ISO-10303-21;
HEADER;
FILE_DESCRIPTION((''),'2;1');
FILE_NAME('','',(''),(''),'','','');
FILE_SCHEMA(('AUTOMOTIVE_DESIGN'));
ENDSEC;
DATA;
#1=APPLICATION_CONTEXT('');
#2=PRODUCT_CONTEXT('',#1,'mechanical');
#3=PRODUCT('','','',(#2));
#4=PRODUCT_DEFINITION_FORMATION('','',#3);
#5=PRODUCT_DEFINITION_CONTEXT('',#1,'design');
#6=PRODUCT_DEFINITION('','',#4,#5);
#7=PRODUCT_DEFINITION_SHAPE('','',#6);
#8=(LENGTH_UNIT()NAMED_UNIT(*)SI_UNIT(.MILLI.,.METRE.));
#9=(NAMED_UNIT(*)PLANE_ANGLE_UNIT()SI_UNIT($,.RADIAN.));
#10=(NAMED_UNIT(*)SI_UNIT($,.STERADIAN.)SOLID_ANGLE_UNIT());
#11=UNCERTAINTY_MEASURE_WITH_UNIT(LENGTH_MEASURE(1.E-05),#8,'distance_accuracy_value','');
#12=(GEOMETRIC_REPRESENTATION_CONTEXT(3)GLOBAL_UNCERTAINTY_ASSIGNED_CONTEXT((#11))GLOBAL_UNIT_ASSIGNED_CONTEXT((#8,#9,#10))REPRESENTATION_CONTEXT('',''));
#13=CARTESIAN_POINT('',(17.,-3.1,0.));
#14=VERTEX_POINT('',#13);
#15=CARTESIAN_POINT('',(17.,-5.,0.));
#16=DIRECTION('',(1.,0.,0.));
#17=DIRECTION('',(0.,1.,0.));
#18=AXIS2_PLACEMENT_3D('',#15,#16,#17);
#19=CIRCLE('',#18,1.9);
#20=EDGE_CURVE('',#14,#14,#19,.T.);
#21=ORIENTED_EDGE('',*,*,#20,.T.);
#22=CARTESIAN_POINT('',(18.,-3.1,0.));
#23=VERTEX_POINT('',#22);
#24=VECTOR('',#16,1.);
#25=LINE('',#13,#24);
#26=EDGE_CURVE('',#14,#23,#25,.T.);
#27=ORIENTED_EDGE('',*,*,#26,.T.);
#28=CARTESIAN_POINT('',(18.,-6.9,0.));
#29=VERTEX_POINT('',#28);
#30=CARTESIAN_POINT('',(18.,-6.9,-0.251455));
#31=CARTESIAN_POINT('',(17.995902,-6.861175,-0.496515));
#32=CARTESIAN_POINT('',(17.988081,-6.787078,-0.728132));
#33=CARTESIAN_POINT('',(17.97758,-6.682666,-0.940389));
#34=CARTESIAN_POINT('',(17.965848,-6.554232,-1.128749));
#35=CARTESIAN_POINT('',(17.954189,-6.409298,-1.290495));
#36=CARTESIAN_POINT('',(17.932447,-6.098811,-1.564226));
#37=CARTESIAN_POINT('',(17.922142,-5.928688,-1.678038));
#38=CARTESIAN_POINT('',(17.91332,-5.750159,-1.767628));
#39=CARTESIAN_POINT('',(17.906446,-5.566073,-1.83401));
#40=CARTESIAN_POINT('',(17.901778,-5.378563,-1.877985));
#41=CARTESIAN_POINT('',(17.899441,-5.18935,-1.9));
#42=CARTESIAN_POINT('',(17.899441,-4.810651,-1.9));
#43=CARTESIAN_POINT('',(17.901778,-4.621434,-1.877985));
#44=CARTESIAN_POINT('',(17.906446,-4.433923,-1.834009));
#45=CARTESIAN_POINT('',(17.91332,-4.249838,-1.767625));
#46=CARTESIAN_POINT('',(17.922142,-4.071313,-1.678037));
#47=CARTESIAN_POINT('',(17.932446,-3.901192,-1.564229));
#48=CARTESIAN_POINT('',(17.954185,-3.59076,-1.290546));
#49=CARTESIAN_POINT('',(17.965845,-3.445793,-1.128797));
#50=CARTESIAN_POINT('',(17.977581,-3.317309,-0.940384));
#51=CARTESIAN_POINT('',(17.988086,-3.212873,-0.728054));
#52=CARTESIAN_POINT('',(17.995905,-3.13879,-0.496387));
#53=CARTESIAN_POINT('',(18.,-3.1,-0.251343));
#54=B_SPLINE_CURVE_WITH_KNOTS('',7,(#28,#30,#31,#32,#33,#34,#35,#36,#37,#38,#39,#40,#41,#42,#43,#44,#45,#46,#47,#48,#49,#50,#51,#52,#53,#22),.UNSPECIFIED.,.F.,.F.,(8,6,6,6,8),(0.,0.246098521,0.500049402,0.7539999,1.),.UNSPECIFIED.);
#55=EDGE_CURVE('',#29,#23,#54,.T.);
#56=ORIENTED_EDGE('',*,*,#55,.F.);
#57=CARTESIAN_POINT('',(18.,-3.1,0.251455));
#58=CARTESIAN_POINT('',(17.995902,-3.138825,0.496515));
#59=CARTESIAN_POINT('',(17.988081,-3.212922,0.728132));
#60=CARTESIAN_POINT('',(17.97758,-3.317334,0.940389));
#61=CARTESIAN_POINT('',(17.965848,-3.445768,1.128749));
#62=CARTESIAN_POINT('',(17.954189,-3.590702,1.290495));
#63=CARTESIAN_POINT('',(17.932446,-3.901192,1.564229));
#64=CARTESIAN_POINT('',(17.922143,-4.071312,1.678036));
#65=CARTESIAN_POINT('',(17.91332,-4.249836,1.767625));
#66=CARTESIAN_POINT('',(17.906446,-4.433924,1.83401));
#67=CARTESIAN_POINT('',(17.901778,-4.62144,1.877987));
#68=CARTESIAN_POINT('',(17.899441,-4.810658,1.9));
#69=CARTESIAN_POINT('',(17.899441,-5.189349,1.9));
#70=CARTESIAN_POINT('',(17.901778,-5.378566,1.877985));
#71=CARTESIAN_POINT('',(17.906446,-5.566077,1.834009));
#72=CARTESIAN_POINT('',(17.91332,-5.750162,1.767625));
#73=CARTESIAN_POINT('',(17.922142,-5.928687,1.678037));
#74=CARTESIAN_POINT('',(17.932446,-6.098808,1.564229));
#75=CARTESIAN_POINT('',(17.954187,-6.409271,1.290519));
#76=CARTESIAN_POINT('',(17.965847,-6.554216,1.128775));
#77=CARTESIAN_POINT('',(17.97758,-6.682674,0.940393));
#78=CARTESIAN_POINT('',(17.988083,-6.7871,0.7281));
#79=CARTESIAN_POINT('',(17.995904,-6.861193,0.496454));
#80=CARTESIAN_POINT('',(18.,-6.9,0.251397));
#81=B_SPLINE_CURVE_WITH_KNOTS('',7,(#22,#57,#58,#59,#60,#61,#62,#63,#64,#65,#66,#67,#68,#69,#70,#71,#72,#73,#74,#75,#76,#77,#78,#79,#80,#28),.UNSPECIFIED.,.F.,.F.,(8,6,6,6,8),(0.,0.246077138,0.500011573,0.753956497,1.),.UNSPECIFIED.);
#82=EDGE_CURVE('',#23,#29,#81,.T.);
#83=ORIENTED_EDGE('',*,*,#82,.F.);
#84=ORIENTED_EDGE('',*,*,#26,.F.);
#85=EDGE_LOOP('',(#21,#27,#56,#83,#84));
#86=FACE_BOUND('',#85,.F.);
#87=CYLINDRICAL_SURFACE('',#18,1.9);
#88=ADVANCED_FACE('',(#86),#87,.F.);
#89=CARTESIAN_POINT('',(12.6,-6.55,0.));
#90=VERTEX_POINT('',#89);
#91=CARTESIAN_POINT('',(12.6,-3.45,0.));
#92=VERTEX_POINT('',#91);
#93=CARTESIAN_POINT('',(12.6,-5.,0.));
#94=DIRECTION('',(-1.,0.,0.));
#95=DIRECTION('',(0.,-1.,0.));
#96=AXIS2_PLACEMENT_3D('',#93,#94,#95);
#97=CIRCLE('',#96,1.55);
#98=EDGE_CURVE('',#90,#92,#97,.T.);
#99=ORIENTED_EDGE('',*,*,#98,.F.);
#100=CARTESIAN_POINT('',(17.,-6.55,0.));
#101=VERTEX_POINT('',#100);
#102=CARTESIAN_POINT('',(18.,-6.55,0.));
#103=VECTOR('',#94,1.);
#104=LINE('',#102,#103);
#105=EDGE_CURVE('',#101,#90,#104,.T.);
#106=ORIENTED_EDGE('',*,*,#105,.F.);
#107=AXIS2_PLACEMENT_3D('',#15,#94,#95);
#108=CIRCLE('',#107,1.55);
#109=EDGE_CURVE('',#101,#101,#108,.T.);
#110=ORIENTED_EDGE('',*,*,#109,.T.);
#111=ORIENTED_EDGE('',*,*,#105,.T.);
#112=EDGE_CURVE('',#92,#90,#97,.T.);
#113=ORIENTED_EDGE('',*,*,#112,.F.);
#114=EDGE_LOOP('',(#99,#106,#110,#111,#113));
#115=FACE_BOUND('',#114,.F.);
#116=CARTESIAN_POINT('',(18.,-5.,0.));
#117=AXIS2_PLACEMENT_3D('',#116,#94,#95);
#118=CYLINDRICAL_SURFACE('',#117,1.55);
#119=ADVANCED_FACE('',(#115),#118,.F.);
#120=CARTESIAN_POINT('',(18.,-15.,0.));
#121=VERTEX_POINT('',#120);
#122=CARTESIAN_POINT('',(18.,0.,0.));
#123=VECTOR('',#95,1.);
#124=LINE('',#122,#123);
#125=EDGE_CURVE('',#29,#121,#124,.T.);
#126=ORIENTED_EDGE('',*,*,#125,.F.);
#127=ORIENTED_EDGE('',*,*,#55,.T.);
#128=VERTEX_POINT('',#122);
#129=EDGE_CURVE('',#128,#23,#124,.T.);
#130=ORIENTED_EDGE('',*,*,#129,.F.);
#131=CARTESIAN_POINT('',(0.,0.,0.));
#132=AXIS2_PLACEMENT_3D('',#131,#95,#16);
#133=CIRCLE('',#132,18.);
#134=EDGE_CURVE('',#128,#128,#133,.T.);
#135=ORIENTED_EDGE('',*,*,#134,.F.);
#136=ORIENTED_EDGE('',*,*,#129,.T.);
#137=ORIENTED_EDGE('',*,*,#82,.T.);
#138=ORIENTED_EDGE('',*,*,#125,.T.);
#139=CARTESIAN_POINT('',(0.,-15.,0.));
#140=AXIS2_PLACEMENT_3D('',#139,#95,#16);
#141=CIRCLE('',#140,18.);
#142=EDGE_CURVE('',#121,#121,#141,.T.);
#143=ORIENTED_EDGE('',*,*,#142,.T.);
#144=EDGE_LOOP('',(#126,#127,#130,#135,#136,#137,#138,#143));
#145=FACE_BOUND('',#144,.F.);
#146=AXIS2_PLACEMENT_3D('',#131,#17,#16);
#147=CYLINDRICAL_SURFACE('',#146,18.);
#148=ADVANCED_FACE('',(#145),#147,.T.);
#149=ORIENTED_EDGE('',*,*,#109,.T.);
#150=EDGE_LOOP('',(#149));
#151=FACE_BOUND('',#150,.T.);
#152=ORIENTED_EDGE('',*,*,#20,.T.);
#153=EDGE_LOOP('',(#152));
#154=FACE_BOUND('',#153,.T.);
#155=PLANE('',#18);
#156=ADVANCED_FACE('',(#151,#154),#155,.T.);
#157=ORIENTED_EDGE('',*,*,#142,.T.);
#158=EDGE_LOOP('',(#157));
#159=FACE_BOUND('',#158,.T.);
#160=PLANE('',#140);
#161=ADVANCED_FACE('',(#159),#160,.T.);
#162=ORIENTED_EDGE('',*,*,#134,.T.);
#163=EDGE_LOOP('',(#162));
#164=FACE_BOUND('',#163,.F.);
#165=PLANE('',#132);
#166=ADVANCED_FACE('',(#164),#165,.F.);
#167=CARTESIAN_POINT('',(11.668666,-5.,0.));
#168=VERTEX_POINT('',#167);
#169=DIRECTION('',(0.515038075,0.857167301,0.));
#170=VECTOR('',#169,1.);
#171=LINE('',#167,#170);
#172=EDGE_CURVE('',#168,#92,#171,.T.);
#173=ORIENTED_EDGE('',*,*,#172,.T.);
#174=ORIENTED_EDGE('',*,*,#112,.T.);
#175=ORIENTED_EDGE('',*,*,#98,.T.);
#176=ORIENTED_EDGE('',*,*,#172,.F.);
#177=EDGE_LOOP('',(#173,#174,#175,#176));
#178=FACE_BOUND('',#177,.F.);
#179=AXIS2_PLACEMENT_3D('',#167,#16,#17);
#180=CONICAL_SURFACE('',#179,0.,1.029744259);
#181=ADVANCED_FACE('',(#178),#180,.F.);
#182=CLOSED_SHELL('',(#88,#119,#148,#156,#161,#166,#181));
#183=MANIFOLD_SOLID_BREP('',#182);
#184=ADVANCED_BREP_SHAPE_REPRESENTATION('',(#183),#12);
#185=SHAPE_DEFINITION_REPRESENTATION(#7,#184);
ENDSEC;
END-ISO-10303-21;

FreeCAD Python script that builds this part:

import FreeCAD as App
import Part
import Sketcher

V = App.Vector

doc = App.newDocument("Part")
body = doc.addObject("PartDesign::Body", "Body")

sketch1 = body.newObject("Sketcher::SketchObject", "Sketch")
sketch1.AttachmentSupport = (doc.getObject("XZ_Plane"), [""])
sketch1.MapMode = "FlatFace"
sketch1.addGeometry(Part.Circle(V(0, 0, 0), V(0, 0, 1), 18), False)
sketch1.addConstraint([
    Sketcher.Constraint("Coincident", 0, 3, -1, 1),
    Sketcher.Constraint("Diameter", 0, 36.0),
])
pad1 = body.newObject("PartDesign::Pad", "Pad")
pad1.Profile = sketch1
pad1.Length = 15

sketch2 = body.newObject("Sketcher::SketchObject", "Sketch001")
sketch2.AttachmentSupport = (doc.getObject("YZ_Plane"), [""])
sketch2.MapMode = "FlatFace"
sketch2.AttachmentOffset = App.Placement(V(0, 0, 18), App.Rotation())
sketch2.addGeometry(Part.Circle(V(-5, 0, 0), V(0, 0, 1), 1.55), False)
sketch2.addConstraint([
    Sketcher.Constraint("PointOnObject", 0, 3, -1),
    Sketcher.Constraint("Diameter", 0, 3.1),
    Sketcher.Constraint("DistanceX", 0, 3, -1, 1, 5.0),
])
doc.recompute()
hole = body.newObject("PartDesign::Hole", "Hole")
hole.Profile = sketch2
hole.ThreadType = "None"
hole.Diameter = 3.1
hole.DepthType = "Dimension"
hole.Depth = 5.4
hole.DrillPoint = "Angled"
hole.DrillPointAngle = 118
hole.HoleCutType = "Counterbore"
hole.HoleCutDiameter = 3.8
hole.HoleCutDepth = 1

doc.recompute()
